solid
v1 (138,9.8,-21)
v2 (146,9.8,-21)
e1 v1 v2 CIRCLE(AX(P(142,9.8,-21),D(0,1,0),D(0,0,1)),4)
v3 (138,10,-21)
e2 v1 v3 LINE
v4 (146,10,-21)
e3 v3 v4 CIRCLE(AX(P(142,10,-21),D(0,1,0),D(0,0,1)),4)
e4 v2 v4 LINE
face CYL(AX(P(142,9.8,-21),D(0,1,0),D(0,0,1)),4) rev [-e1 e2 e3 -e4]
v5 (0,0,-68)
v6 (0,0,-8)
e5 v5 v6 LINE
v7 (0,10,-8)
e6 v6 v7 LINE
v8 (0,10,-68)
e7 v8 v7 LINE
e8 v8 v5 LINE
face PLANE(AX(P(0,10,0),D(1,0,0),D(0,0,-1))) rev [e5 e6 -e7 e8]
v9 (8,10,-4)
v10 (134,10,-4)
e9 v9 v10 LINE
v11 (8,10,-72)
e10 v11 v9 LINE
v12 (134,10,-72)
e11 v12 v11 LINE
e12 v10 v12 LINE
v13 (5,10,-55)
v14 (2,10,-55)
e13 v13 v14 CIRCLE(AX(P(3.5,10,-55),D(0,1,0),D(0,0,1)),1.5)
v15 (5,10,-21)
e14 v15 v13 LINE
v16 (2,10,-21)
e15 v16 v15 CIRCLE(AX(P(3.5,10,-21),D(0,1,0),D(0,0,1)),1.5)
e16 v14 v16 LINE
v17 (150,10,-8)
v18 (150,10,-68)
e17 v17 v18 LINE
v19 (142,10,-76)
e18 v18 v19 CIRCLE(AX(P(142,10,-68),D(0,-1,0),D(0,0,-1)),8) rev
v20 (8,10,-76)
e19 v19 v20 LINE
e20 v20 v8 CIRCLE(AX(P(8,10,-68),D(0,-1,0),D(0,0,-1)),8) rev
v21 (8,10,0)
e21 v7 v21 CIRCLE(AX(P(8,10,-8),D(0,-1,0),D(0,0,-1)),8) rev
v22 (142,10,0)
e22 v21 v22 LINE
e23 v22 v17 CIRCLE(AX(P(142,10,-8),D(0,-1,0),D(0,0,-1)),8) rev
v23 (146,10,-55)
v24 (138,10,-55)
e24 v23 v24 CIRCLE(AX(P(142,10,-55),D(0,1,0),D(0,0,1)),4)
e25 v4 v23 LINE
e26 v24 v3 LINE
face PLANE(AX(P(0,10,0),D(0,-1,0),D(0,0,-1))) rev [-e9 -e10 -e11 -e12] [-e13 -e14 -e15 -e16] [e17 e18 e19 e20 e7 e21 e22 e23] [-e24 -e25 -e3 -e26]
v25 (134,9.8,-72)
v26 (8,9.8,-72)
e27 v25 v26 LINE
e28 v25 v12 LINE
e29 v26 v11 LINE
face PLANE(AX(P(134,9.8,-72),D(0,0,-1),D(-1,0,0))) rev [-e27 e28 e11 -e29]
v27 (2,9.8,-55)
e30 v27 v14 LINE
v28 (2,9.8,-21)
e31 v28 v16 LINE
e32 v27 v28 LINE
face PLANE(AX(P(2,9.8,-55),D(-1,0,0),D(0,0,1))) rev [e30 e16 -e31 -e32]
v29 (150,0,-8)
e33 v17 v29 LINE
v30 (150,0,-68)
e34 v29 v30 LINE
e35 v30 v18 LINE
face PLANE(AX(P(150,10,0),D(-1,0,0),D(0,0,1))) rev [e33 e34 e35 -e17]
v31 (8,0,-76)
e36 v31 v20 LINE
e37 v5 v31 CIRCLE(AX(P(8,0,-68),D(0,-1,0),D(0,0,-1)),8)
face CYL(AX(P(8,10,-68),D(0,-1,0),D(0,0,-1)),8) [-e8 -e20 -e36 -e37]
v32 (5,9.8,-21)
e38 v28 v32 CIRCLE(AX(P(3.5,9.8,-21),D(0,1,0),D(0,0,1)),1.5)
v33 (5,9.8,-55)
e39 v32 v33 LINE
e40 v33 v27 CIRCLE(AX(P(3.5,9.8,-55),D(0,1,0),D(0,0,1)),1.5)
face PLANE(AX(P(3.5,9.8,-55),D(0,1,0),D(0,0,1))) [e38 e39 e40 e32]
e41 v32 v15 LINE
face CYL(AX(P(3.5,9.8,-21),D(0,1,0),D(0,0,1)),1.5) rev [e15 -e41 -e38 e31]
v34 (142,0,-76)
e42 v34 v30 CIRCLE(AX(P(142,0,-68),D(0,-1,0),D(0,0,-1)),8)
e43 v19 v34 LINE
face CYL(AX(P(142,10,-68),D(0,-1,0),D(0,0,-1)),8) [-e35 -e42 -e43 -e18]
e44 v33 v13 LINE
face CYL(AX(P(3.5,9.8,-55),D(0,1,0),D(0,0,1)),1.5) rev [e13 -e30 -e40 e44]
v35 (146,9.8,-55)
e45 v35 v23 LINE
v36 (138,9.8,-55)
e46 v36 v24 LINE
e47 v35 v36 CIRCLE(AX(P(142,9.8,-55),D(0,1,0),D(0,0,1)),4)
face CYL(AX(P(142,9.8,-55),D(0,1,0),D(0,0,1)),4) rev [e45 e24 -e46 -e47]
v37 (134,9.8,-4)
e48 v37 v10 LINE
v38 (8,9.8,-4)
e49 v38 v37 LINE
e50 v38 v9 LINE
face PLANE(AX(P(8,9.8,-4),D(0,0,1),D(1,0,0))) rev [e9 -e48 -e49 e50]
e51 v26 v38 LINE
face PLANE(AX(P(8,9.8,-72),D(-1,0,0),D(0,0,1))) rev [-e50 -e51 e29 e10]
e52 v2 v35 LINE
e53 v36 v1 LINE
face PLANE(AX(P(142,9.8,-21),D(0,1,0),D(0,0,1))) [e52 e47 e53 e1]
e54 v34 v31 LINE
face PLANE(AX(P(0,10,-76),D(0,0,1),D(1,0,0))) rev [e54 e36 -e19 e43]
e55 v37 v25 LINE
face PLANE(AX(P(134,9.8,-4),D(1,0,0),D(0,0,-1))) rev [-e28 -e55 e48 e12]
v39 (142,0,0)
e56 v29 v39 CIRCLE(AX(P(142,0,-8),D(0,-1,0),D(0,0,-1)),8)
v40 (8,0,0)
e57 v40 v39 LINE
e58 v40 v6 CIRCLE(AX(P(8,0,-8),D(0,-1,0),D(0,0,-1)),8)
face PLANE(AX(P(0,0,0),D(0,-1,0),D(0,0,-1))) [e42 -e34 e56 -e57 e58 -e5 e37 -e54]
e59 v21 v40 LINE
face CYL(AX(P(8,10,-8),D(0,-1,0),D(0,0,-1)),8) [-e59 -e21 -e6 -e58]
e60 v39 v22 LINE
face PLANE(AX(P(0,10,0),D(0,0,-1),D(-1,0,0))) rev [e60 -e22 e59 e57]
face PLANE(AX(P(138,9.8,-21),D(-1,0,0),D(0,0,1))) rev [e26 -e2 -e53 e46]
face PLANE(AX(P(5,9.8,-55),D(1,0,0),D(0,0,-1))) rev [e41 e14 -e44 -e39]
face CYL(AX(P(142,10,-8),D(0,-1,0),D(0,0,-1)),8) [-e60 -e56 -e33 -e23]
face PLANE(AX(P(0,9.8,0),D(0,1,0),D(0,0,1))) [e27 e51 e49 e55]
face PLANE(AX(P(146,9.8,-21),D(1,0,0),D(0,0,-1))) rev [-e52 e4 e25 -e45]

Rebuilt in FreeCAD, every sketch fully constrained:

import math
import FreeCAD as App
import Part
import Sketcher


def edges_at(feature, points):
    """Names of the edges that pass closest to the given points."""
    edges = feature.Shape.Edges
    near = lambda p: min(range(len(edges)), key=lambda i: edges[i].distToShape(Part.Vertex(*p))[0])
    return sorted({f"Edge{near(p) + 1}" for p in points})

doc = App.newDocument("Part")
body = doc.addObject("PartDesign::Body", "Body")

# Sketch on XZ plane
sketch1 = body.newObject("Sketcher::SketchObject", "Sketch")
sketch1.AttachmentSupport = (doc.getObject("XZ_Plane"), [""])
sketch1.MapMode = "FlatFace"
sketch1.addGeometry(Part.LineSegment(App.Vector(0, -76, 0), App.Vector(0, 0, 0)), False)
sketch1.addGeometry(Part.LineSegment(App.Vector(0, 0, 0), App.Vector(150, 0, 0)), False)
sketch1.addGeometry(Part.LineSegment(App.Vector(150, 0, 0), App.Vector(150, -76, 0)), False)
sketch1.addGeometry(Part.LineSegment(App.Vector(150, -76, 0), App.Vector(0, -76, 0)), False)
sketch1.addConstraint(Sketcher.Constraint("Coincident", 0, 2, 1, 1))
sketch1.addConstraint(Sketcher.Constraint("Coincident", 1, 2, 2, 1))
sketch1.addConstraint(Sketcher.Constraint("Coincident", 2, 2, 3, 1))
sketch1.addConstraint(Sketcher.Constraint("Coincident", 3, 2, 0, 1))
sketch1.addConstraint(Sketcher.Constraint("Vertical", 0))
sketch1.addConstraint(Sketcher.Constraint("Horizontal", 1))
sketch1.addConstraint(Sketcher.Constraint("Vertical", 2))
sketch1.addConstraint(Sketcher.Constraint("Horizontal", 3))
sketch1.addConstraint(Sketcher.Constraint("Coincident", 0, 2, -1, 1))
sketch1.addConstraint(Sketcher.Constraint("DistanceX", 1, 1, 1, 2, 150.0))
sketch1.addConstraint(Sketcher.Constraint("DistanceY", 0, 1, 0, 2, 76.0))
pad1 = body.newObject("PartDesign::Pad", "Pad")
pad1.Profile = sketch1
pad1.Length = 10
pad1.Reversed = True

# Sketch on XZ plane
sketch2 = body.newObject("Sketcher::SketchObject", "Sketch001")
sketch2.AttachmentSupport = (doc.getObject("XZ_Plane"), [""])
sketch2.MapMode = "FlatFace"
sketch2.AttachmentOffset = App.Placement(App.Vector(0, 0, -10), App.Rotation())
sketch2.addGeometry(Part.LineSegment(App.Vector(8, -72, 0), App.Vector(8, -4, 0)), False)
sketch2.addGeometry(Part.LineSegment(App.Vector(8, -4, 0), App.Vector(134, -4, 0)), False)
sketch2.addGeometry(Part.LineSegment(App.Vector(134, -4, 0), App.Vector(134, -72, 0)), False)
sketch2.addGeometry(Part.LineSegment(App.Vector(134, -72, 0), App.Vector(8, -72, 0)), False)
sketch2.addGeometry(Part.LineSegment(App.Vector(138, -55, 0), App.Vector(138, -21, 0)), False)
sketch2.addGeometry(Part.ArcOfCircle(Part.Circle(App.Vector(142, -21, 0), App.Vector(0, 0, 1), 4), math.radians(0), math.radians(180)), False)
sketch2.addGeometry(Part.LineSegment(App.Vector(146, -21, 0), App.Vector(146, -55, 0)), False)
sketch2.addGeometry(Part.ArcOfCircle(Part.Circle(App.Vector(142, -55, 0), App.Vector(0, 0, 1), 4), math.radians(180), math.radians(360)), False)
sketch2.addGeometry(Part.LineSegment(App.Vector(5, -21, 0), App.Vector(5, -55, 0)), False)
sketch2.addGeometry(Part.ArcOfCircle(Part.Circle(App.Vector(3.5, -55, 0), App.Vector(0, 0, 1), 1.5), math.radians(180), math.radians(360)), False)
sketch2.addGeometry(Part.LineSegment(App.Vector(2, -55, 0), App.Vector(2, -21, 0)), False)
sketch2.addGeometry(Part.ArcOfCircle(Part.Circle(App.Vector(3.5, -21, 0), App.Vector(0, 0, 1), 1.5), math.radians(0), math.radians(180)), False)
sketch2.addConstraint(Sketcher.Constraint("Coincident", 0, 2, 1, 1))
sketch2.addConstraint(Sketcher.Constraint("Coincident", 1, 2, 2, 1))
sketch2.addConstraint(Sketcher.Constraint("Coincident", 2, 2, 3, 1))
sketch2.addConstraint(Sketcher.Constraint("Coincident", 3, 2, 0, 1))
sketch2.addConstraint(Sketcher.Constraint("Tangent", 4, 2, 5, 2))
sketch2.addConstraint(Sketcher.Constraint("Tangent", 5, 1, 6, 1))
sketch2.addConstraint(Sketcher.Constraint("Tangent", 6, 2, 7, 2))
sketch2.addConstraint(Sketcher.Constraint("Tangent", 7, 1, 4, 1))
sketch2.addConstraint(Sketcher.Constraint("Tangent", 8, 2, 9, 2))
sketch2.addConstraint(Sketcher.Constraint("Tangent", 9, 1, 10, 1))
sketch2.addConstraint(Sketcher.Constraint("Tangent", 10, 2, 11, 2))
sketch2.addConstraint(Sketcher.Constraint("Tangent", 11, 1, 8, 1))
sketch2.addConstraint(Sketcher.Constraint("Vertical", 0))
sketch2.addConstraint(Sketcher.Constraint("Horizontal", 1))
sketch2.addConstraint(Sketcher.Constraint("Vertical", 2))
sketch2.addConstraint(Sketcher.Constraint("Horizontal", 3))
sketch2.addConstraint(Sketcher.Constraint("Vertical", 4))
sketch2.addConstraint(Sketcher.Constraint("Vertical", 6))
sketch2.addConstraint(Sketcher.Constraint("Vertical", 8))
sketch2.addConstraint(Sketcher.Constraint("Vertical", 10))
sketch2.addConstraint(Sketcher.Constraint("Horizontal", 7, 3, 9, 3))
sketch2.addConstraint(Sketcher.Constraint("Horizontal", 5, 3, 11, 3))
sketch2.addConstraint(Sketcher.Constraint("Radius", 5, 4.0))
sketch2.addConstraint(Sketcher.Constraint("Radius", 9, 1.5))
sketch2.addConstraint(Sketcher.Constraint("DistanceX", 1, 1, 1, 2, 126.0))
sketch2.addConstraint(Sketcher.Constraint("DistanceY", 0, 1, 0, 2, 68.0))
sketch2.addConstraint(Sketcher.Constraint("DistanceY", 4, 1, 4, 2, 34.0))
sketch2.addConstraint(Sketcher.Constraint("DistanceX", -1, 1, 5, 3, 142.0))
sketch2.addConstraint(Sketcher.Constraint("DistanceY", 5, 3, -1, 1, 21.0))
sketch2.addConstraint(Sketcher.Constraint("DistanceX", -1, 1, 0, 2, 8.0))
sketch2.addConstraint(Sketcher.Constraint("DistanceY", 0, 2, -1, 1, 4.0))
sketch2.addConstraint(Sketcher.Constraint("DistanceX", -1, 1, 8, 2, 5.0))
pocket1 = body.newObject("PartDesign::Pocket", "Pocket")
pocket1.Profile = sketch2
pocket1.Length = 0.2
pocket1.Reversed = True
doc.recompute()

fillet = body.newObject("PartDesign::Fillet", "Fillet")
fillet.Base = (pocket1, edges_at(pocket1, [
    (0, 5, -76),
    (150, 5, -76),
    (150, 5, 0),
    (0, 5, 0),
]))
fillet.Radius = 8

doc.recompute()
